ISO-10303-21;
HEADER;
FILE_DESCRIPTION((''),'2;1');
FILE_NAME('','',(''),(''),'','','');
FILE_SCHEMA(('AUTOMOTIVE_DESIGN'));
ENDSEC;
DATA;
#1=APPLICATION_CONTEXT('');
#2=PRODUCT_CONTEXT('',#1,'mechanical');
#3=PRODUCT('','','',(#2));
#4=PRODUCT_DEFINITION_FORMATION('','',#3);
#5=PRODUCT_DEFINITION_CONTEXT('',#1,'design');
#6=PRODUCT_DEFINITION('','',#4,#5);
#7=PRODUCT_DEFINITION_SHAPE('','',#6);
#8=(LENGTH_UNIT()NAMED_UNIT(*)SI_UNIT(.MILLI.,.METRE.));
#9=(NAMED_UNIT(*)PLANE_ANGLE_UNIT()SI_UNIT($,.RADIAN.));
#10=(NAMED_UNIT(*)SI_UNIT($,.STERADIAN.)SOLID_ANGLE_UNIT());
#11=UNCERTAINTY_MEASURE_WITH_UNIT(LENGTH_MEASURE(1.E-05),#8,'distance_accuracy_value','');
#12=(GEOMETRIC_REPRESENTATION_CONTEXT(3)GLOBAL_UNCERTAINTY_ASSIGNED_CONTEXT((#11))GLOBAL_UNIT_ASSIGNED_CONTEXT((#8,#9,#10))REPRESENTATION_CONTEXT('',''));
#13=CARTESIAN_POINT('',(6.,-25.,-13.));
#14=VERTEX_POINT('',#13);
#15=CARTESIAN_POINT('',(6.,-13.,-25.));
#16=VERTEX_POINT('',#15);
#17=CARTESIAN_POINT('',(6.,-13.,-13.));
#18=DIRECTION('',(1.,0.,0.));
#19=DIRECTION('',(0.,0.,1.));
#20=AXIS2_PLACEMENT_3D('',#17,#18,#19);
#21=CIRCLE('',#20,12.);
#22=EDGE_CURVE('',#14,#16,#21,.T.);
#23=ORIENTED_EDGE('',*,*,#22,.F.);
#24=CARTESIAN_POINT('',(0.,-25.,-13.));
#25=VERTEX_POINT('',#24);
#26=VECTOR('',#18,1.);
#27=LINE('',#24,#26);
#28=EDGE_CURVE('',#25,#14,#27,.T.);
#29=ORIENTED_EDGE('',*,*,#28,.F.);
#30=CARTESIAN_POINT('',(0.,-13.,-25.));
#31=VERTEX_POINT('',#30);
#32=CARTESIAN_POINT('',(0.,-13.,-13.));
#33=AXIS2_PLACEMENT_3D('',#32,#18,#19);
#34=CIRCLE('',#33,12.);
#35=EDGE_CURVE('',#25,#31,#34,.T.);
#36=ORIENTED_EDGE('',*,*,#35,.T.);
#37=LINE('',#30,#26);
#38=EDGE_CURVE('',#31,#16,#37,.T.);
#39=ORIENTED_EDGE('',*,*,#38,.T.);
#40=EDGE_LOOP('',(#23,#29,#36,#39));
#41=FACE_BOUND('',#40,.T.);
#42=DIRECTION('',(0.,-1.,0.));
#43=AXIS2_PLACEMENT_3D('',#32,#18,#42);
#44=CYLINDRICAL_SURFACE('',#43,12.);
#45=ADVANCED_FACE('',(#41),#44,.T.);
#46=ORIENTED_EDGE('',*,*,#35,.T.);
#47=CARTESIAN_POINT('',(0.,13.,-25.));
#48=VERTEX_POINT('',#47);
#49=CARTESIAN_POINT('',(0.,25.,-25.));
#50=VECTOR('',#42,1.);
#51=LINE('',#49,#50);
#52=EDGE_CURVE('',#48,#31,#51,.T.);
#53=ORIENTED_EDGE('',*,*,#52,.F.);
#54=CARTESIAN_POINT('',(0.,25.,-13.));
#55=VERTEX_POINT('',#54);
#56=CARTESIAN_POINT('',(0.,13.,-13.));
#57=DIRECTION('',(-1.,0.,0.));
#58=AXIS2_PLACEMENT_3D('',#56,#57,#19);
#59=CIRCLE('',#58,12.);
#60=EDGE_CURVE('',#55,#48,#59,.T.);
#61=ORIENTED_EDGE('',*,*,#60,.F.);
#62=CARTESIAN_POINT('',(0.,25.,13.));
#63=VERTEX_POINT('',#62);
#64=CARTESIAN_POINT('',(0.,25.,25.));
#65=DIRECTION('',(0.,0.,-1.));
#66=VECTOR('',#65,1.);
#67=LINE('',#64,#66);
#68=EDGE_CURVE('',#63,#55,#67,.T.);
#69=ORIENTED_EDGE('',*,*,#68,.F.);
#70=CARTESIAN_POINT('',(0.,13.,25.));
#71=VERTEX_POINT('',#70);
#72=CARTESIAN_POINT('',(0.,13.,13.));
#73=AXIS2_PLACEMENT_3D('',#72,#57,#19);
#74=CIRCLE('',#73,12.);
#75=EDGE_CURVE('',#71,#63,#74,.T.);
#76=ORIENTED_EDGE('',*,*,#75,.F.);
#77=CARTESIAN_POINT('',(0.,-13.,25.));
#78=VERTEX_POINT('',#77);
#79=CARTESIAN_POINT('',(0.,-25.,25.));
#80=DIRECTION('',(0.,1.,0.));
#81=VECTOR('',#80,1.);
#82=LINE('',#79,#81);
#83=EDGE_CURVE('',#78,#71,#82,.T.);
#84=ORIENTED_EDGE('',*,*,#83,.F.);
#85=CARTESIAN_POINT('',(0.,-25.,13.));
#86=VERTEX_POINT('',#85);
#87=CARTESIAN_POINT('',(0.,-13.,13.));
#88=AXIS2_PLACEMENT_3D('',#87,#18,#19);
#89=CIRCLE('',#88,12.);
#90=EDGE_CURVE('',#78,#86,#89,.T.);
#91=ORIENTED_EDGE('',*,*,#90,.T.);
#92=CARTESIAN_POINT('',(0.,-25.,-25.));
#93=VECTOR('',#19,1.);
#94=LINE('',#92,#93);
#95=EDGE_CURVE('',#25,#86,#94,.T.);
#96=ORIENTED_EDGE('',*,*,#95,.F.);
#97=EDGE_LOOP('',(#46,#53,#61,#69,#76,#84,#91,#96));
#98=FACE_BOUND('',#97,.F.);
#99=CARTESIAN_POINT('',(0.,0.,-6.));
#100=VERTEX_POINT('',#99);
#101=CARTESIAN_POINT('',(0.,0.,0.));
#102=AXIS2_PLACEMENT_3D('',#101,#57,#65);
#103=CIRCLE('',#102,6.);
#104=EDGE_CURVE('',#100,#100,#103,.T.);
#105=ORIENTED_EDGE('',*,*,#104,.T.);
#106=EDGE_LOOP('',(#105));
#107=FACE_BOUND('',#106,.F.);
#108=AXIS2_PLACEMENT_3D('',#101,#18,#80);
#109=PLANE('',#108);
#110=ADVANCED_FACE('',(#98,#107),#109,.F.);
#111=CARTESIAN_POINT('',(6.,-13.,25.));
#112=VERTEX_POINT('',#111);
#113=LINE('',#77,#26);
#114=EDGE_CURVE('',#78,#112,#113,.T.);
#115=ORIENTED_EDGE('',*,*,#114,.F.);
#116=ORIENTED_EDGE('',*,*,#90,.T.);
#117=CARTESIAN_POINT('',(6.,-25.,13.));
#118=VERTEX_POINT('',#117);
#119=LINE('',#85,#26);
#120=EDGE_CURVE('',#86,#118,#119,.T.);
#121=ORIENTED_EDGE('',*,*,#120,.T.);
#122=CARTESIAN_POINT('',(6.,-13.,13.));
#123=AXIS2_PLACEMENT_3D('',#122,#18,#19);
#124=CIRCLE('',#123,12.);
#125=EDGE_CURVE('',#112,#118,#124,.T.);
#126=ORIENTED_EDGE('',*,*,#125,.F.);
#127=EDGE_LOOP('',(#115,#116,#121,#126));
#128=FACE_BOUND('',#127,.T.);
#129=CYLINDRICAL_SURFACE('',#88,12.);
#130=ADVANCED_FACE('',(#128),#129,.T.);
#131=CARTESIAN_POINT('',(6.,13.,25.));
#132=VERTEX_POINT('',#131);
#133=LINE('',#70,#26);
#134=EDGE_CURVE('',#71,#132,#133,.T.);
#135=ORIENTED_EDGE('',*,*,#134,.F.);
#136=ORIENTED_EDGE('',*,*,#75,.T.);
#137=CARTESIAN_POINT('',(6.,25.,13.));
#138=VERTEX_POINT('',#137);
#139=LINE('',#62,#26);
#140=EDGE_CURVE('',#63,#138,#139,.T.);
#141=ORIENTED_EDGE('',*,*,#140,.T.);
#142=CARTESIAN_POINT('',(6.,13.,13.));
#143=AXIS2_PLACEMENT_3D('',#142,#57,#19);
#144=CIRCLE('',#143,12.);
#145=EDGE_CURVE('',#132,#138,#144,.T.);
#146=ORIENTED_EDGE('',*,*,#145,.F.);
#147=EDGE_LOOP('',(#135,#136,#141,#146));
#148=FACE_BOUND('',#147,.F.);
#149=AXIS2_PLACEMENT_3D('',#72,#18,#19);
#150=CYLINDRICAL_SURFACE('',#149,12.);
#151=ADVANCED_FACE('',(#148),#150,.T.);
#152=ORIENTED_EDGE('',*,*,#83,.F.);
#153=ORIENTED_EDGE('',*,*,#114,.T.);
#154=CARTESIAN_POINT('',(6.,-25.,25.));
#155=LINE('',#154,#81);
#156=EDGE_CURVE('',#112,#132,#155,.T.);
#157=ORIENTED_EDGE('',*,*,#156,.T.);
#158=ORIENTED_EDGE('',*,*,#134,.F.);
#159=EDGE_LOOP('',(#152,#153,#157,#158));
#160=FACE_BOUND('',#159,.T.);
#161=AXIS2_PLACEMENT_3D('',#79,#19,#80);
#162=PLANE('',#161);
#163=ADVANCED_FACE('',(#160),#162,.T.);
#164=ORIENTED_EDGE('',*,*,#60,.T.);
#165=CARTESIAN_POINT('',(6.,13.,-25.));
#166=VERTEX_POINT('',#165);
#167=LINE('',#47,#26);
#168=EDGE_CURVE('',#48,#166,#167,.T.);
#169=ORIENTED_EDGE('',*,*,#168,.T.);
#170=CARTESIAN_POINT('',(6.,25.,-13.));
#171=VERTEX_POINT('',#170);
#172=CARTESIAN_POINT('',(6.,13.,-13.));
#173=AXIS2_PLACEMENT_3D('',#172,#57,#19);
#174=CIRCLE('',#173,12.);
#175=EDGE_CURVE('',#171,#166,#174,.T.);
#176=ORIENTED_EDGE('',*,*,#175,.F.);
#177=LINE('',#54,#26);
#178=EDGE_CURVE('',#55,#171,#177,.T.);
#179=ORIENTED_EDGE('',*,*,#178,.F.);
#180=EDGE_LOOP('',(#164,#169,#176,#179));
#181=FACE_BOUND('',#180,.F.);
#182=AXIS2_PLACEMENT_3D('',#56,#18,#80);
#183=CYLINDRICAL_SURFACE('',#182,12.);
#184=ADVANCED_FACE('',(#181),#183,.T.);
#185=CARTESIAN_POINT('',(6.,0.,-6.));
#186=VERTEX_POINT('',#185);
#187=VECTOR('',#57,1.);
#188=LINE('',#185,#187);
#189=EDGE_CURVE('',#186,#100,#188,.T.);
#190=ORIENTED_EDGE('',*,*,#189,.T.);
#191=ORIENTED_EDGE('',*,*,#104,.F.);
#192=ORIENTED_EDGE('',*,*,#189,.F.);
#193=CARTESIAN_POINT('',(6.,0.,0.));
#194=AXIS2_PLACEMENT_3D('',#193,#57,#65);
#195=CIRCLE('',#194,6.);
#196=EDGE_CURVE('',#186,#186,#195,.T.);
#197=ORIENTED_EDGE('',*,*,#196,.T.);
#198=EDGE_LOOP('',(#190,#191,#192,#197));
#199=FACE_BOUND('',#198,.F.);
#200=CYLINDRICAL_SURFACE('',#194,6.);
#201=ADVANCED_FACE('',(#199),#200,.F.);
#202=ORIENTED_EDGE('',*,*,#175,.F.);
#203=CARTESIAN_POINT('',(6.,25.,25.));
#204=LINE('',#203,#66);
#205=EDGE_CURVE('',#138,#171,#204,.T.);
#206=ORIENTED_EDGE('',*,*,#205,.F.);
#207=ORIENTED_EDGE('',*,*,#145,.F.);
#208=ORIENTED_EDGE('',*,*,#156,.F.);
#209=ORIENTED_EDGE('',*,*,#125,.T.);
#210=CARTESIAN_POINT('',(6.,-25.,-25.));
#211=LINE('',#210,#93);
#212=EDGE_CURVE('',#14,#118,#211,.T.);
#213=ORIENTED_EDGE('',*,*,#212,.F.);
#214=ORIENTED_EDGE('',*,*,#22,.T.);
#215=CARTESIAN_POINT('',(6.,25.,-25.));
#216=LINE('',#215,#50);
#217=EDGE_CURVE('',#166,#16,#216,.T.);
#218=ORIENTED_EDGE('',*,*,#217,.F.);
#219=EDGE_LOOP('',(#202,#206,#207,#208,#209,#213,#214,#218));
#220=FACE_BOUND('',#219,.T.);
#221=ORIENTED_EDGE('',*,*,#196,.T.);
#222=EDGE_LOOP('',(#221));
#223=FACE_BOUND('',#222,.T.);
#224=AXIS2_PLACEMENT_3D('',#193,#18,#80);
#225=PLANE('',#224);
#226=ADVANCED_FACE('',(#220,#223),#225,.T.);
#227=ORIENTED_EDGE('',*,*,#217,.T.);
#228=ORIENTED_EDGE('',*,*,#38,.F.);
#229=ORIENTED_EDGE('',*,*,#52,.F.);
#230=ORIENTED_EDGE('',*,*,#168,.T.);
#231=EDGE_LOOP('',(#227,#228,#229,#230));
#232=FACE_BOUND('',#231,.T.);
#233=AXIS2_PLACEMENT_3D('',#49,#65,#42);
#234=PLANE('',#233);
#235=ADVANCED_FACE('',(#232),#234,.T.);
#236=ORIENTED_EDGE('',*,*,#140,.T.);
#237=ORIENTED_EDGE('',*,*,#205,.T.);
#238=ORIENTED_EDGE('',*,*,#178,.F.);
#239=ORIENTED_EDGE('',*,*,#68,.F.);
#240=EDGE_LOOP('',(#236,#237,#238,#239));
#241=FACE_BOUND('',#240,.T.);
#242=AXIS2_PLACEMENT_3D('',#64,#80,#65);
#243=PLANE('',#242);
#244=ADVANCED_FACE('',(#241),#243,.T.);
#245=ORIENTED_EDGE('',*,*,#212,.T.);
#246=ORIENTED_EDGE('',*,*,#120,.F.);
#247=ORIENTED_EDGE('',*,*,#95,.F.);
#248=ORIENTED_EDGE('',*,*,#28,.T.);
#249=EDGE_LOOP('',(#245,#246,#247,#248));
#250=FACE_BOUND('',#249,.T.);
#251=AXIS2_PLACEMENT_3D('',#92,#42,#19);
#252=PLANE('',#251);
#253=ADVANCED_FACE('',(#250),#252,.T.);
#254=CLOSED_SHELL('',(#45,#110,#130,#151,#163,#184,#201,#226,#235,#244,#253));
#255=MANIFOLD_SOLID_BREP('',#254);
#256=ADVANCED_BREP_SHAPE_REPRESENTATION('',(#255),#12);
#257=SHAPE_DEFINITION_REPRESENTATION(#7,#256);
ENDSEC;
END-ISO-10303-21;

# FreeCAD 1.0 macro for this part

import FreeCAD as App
import Part
import Sketcher
from FreeCAD import Vector


def edges_at(feature, points):
    """Names of the edges that pass closest to the given points."""
    edges = feature.Shape.Edges
    near = lambda p: min(range(len(edges)), key=lambda i: edges[i].distToShape(Part.Vertex(*p))[0])
    return sorted({f"Edge{near(p) + 1}" for p in points})

doc = App.newDocument("Part")
body = doc.addObject("PartDesign::Body", "Body")

sketch1 = doc.addObject("Sketcher::SketchObject", "Sketch")
body.addObject(sketch1)
sketch1.AttachmentSupport = (doc.YZ_Plane, [""])
sketch1.MapMode = "FlatFace"
sketch1.addGeometry(Part.LineSegment(Vector(25, 25, 0), Vector(-25, 25, 0)), False)
sketch1.addGeometry(Part.LineSegment(Vector(-25, 25, 0), Vector(-25, -25, 0)), False)
sketch1.addGeometry(Part.LineSegment(Vector(-25, -25, 0), Vector(25, -25, 0)), False)
sketch1.addGeometry(Part.LineSegment(Vector(25, -25, 0), Vector(25, 25, 0)), False)
sketch1.addConstraint(Sketcher.Constraint("Coincident", 0, 2, 1, 1))
sketch1.addConstraint(Sketcher.Constraint("Coincident", 1, 2, 2, 1))
sketch1.addConstraint(Sketcher.Constraint("Coincident", 2, 2, 3, 1))
sketch1.addConstraint(Sketcher.Constraint("Coincident", 3, 2, 0, 1))
sketch1.addConstraint(Sketcher.Constraint("Horizontal", 0))
sketch1.addConstraint(Sketcher.Constraint("Vertical", 1))
sketch1.addConstraint(Sketcher.Constraint("Horizontal", 2))
sketch1.addConstraint(Sketcher.Constraint("Vertical", 3))
sketch1.addConstraint(Sketcher.Constraint("Symmetric", 0, 2, 2, 2, -1, 1))
sketch1.addConstraint(Sketcher.Constraint("Equal", 2, 1))
sketch1.addConstraint(Sketcher.Constraint("DistanceX", 0, 2, 0, 1, 50.0))
pad1 = doc.addObject("PartDesign::Pad", "Pad")
body.addObject(pad1)
pad1.Profile = sketch1
pad1.Length = 6

sketch2 = doc.addObject("Sketcher::SketchObject", "Sketch001")
body.addObject(sketch2)
sketch2.AttachmentSupport = (doc.YZ_Plane, [""])
sketch2.MapMode = "FlatFace"
sketch2.AttachmentOffset = App.Placement(Vector(0, 0, 6), App.Rotation())
sketch2.addGeometry(Part.Circle(Vector(0, 0, 0), Vector(0, 0, 1), 6), False)
sketch2.addConstraint(Sketcher.Constraint("Coincident", 0, 3, -1, 1))
sketch2.addConstraint(Sketcher.Constraint("Diameter", 0, 12.0))
doc.recompute()
hole = doc.addObject("PartDesign::Hole", "Hole")
body.addObject(hole)
hole.Profile = sketch2
hole.ThreadType = "None"
hole.Diameter = 12
hole.DepthType = "ThroughAll"
doc.recompute()

fillet = doc.addObject("PartDesign::Fillet", "Fillet")
body.addObject(fillet)
fillet.Base = (hole, edges_at(hole, [
    (3, 25, 25),
    (3, 25, -25),
    (3, -25, -25),
    (3, -25, 25),
]))
fillet.Radius = 12

doc.recompute()
